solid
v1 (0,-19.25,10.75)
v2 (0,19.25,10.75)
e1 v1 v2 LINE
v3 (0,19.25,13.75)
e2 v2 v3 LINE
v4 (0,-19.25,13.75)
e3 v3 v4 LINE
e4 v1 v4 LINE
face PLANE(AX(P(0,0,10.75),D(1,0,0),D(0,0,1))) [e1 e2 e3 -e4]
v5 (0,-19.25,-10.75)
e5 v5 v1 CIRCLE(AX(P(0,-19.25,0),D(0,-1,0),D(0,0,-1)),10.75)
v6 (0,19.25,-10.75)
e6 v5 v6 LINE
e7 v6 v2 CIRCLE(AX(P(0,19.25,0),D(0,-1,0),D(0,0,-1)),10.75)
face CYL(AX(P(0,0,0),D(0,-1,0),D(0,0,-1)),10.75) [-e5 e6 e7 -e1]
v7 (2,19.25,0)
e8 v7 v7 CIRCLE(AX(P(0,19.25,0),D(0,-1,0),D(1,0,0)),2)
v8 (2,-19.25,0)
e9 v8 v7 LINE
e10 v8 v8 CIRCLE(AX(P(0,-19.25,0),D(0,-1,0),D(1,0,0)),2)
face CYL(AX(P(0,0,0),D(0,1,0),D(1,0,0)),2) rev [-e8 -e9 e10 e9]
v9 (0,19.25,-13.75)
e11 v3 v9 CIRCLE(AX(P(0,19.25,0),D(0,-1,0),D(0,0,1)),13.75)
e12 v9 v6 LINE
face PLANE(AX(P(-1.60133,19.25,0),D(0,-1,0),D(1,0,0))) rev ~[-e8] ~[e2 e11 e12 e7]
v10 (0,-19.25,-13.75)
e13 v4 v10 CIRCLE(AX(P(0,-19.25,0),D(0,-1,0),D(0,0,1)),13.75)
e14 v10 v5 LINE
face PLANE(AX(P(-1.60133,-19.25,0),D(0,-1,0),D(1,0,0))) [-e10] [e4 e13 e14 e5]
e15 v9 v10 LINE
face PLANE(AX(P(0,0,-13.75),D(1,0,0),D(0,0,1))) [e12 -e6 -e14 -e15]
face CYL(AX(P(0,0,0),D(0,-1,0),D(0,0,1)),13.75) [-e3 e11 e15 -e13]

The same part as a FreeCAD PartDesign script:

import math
import FreeCAD as App
import Part
import Sketcher
from FreeCAD import Vector

doc = App.newDocument("Part")
body = doc.addObject("PartDesign::Body", "Body")

# Sketch on XZ plane
sketch1 = doc.addObject("Sketcher::SketchObject", "Sketch")
body.addObject(sketch1)
sketch1.AttachmentSupport = (doc.XZ_Plane, [""])
sketch1.MapMode = "FlatFace"
sketch1.addGeometry(Part.LineSegment(Vector(0, 10.75, 0), Vector(0, 13.75, 0)), False)
sketch1.addGeometry(Part.ArcOfCircle(Part.Circle(Vector(0, 0, 0), Vector(0, 0, 1), 13.75), math.radians(90), math.radians(270)), False)
sketch1.addGeometry(Part.LineSegment(Vector(0, -13.75, 0), Vector(0, -10.75, 0)), False)
sketch1.addGeometry(Part.ArcOfCircle(Part.Circle(Vector(0, 0, 0), Vector(0, 0, 1), 10.75), math.radians(-90), math.radians(90)), False)
sketch1.addGeometry(Part.Circle(Vector(0, 0, 0), Vector(0, 0, 1), 2), False)
sketch1.addConstraint(Sketcher.Constraint("Coincident", 0, 2, 1, 1))
sketch1.addConstraint(Sketcher.Constraint("Coincident", 1, 2, 2, 1))
sketch1.addConstraint(Sketcher.Constraint("Coincident", 2, 2, 3, 1))
sketch1.addConstraint(Sketcher.Constraint("Coincident", 3, 2, 0, 1))
sketch1.addConstraint(Sketcher.Constraint("Vertical", 0))
sketch1.addConstraint(Sketcher.Constraint("Vertical", 2))
sketch1.addConstraint(Sketcher.Constraint("Coincident", 1, 3, -1, 1))
sketch1.addConstraint(Sketcher.Constraint("Coincident", 3, 3, -1, 1))
sketch1.addConstraint(Sketcher.Constraint("Coincident", 4, 3, -1, 1))
sketch1.addConstraint(Sketcher.Constraint("PointOnObject", 0, 2, -2))
sketch1.addConstraint(Sketcher.Constraint("PointOnObject", 1, 2, -2))
sketch1.addConstraint(Sketcher.Constraint("Diameter", 4, 4.0))
sketch1.addConstraint(Sketcher.Constraint("DistanceY", 0, 1, 0, 2, 3.0))
sketch1.addConstraint(Sketcher.Constraint("Radius", 1, 13.75))
pad1 = doc.addObject("PartDesign::Pad", "Pad")
body.addObject(pad1)
pad1.Profile = sketch1
pad1.Length = 38.5
pad1.Midplane = True

doc.recompute()
